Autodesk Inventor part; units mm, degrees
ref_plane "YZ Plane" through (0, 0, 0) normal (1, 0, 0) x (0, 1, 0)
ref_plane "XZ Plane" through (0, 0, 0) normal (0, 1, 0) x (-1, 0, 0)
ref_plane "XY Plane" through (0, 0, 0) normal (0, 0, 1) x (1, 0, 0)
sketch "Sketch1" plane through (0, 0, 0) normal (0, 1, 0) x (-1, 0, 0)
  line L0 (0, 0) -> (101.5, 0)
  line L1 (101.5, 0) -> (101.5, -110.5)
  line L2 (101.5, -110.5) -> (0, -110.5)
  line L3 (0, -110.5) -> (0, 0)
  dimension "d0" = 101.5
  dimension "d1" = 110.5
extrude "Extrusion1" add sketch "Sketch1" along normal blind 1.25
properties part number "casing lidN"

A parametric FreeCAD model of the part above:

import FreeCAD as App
import Part
import Sketcher
Q = App.Units.Quantity


def add_polygon(sketch, points):
    """Adds a closed chain of lines whose ends are joined by coincident constraints."""
    first, n = sketch.GeometryCount, len(points)
    for a, b in zip(points, points[1:] + points[:1]):
        sketch.addGeometry(Part.LineSegment(App.Vector(*a, 0), App.Vector(*b, 0)), False)
    for i in range(n):
        sketch.addConstraint(Sketcher.Constraint("Coincident", first + i, 2, first + (i + 1) % n, 1))

doc = App.newDocument("Part")
params = doc.addObject("Spreadsheet::Sheet", "Params")
for row, (alias, value) in enumerate([
    ("sketch1_width", "101.5 mm"),
    ("sketch1_height", "110.5 mm"),
    ("pad1_length", "1.25 mm"),
], start=1):
    params.set(f"A{row}", alias)
    params.set(f"B{row}", "=" + value)
    params.setAlias(f"B{row}", alias)

body = doc.addObject("PartDesign::Body", "Body")

sketch1 = doc.addObject("Sketcher::SketchObject", "Sketch")
body.addObject(sketch1)
sketch1.AttachmentSupport = (doc.XZ_Plane, [""])
sketch1.MapMode = "FlatFace"
add_polygon(sketch1, [(-101.5, 0), (0, 0), (0, -110.5), (-101.5, -110.5)])
sketch1.addConstraint(Sketcher.Constraint("Horizontal", 0))
sketch1.addConstraint(Sketcher.Constraint("Vertical", 1))
sketch1.addConstraint(Sketcher.Constraint("Horizontal", 2))
sketch1.addConstraint(Sketcher.Constraint("Vertical", 3))
sketch1.addConstraint(Sketcher.Constraint("Coincident", 0, 2, -1, 1))
sketch1.addConstraint(Sketcher.Constraint("DistanceX", 0, 1, 0, 2, Q("101.5 mm")))
sketch1.addConstraint(Sketcher.Constraint("DistanceY", 1, 2, 1, 1, Q("110.5 mm")))
sketch1.setExpression("Constraints[9]", "Params.sketch1_width")
sketch1.setExpression("Constraints[10]", "Params.sketch1_height")
pad1 = doc.addObject("PartDesign::Pad", "Pad")
body.addObject(pad1)
pad1.Profile = sketch1
pad1.setExpression("Length", "Params.pad1_length")
pad1.Reversed = True

doc.recompute()
